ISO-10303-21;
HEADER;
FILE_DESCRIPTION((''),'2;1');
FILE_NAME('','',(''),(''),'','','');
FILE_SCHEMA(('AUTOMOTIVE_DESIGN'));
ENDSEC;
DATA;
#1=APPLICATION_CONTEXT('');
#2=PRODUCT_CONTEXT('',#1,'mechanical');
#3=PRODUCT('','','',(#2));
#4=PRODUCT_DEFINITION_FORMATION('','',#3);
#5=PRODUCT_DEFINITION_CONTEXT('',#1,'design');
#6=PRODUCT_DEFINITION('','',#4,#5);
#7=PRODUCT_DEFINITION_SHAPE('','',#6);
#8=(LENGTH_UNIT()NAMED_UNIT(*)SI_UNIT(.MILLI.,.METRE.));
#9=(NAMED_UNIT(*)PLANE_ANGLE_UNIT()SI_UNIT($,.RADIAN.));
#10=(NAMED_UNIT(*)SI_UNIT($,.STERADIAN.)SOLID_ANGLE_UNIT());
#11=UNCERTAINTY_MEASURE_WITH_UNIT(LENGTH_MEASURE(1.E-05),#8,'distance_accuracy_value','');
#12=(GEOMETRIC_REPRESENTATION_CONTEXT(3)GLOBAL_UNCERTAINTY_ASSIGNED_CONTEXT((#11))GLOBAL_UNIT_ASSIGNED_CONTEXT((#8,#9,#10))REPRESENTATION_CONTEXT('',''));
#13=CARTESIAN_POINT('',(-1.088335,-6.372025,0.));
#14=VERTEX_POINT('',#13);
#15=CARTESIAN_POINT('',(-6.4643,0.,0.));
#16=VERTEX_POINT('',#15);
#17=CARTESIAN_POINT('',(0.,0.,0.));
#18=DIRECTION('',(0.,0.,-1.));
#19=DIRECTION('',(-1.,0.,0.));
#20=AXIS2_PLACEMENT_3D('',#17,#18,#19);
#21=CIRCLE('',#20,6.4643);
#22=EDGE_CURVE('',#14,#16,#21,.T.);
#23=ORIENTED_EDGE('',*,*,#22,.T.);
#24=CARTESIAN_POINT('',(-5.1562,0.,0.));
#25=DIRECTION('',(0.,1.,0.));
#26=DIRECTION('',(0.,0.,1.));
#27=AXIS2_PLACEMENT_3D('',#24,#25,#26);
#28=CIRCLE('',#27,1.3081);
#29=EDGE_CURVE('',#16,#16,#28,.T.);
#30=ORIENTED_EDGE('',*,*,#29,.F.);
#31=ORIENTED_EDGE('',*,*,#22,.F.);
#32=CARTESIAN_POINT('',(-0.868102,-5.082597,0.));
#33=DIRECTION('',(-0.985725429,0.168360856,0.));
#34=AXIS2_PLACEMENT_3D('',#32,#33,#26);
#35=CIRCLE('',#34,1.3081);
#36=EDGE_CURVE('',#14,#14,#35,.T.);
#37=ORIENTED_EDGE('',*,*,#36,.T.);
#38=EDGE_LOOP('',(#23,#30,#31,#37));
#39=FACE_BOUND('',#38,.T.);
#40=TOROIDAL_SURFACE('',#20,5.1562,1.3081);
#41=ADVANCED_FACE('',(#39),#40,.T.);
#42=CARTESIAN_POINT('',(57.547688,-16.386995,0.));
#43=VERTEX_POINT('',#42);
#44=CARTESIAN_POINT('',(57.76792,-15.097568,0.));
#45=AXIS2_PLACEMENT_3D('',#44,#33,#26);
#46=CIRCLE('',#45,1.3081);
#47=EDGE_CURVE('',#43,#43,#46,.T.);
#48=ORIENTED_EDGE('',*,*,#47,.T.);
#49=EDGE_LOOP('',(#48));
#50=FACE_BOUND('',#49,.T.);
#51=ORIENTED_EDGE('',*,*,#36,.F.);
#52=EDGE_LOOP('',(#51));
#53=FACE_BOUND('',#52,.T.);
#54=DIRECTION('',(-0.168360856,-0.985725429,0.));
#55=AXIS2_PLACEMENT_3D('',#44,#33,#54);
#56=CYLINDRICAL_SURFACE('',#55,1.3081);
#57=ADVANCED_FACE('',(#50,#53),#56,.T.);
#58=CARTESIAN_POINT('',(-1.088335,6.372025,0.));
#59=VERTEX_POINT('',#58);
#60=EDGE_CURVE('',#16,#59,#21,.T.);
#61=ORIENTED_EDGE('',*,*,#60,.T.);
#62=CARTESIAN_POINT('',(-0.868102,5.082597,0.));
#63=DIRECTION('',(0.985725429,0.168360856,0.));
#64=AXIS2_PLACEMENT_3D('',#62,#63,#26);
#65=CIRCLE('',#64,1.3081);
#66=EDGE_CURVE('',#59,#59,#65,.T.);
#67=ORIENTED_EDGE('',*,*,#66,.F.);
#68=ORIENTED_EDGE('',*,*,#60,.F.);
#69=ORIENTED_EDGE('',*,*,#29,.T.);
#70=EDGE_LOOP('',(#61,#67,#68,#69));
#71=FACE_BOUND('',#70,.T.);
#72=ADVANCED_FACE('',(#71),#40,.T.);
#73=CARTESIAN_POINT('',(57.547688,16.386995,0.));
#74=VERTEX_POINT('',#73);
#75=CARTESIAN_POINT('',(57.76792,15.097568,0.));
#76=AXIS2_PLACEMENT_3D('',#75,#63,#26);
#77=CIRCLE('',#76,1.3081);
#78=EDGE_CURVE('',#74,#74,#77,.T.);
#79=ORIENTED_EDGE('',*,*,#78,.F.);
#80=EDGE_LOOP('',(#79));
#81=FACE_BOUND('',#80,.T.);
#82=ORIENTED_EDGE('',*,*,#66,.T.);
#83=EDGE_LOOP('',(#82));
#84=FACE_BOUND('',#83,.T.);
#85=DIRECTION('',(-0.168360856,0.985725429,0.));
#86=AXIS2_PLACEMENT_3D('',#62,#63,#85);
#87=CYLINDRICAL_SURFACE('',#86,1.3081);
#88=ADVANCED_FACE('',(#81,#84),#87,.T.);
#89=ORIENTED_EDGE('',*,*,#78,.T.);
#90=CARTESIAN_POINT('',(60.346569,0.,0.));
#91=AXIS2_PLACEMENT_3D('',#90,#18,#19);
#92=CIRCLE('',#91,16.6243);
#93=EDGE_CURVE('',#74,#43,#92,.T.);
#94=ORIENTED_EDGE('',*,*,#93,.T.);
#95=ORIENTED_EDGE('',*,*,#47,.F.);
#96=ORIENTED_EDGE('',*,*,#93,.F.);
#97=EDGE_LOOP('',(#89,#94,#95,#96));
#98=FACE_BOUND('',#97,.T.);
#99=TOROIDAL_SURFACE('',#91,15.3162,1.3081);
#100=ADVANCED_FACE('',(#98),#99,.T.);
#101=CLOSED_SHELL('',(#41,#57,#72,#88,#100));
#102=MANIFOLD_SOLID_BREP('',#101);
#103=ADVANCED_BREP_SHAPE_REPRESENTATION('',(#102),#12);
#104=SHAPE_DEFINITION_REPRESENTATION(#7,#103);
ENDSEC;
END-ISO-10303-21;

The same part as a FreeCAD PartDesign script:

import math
import FreeCAD as App
import Part
import Sketcher
Q = App.Units.Quantity

doc = App.newDocument("Part")
body = doc.addObject("PartDesign::Body", "Body")

# Sketch on XZ plane
sketch1 = body.newObject("Sketcher::SketchObject", "Sketch")
sketch1.AttachmentSupport = (doc.getObject("XZ_Plane"), [""])
sketch1.MapMode = "FlatFace"
sketch1.addGeometry(Part.Circle(App.Vector(-5.1562, 0, 0), App.Vector(0, 0, 1), 1.3081), False)
sketch1.addConstraint(Sketcher.Constraint("PointOnObject", 0, 3, -1))
sketch1.addConstraint(Sketcher.Constraint("Diameter", 0, Q("0.103 in")))
sketch1.addConstraint(Sketcher.Constraint("DistanceX", 0, 3, -1, 1, Q("0.203 in")))

# Sketch on XY plane
sketch2 = body.newObject("Sketcher::SketchObject", "Sketch001")
sketch2.AttachmentSupport = (doc.getObject("XY_Plane"), [""])
sketch2.MapMode = "FlatFace"
sketch2.addGeometry(Part.LineSegment(App.Vector(-0.868102, 5.082597, 0), App.Vector(57.76792, 15.097568, 0)), False)
sketch2.addGeometry(Part.ArcOfCircle(Part.Circle(App.Vector(60.346569, 0, 0), App.Vector(0, 0, 1), 15.3162), math.radians(-99.692529), math.radians(99.692529)), False)
sketch2.addGeometry(Part.LineSegment(App.Vector(57.76792, -15.097568, 0), App.Vector(-0.868102, -5.082597, 0)), False)
sketch2.addGeometry(Part.ArcOfCircle(Part.Circle(App.Vector(0, 0, 0), App.Vector(0, 0, 1), 5.1562), math.radians(99.692529), math.radians(260.307471)), False)
sketch2.addConstraint(Sketcher.Constraint("Tangent", 0, 2, 1, 2))
sketch2.addConstraint(Sketcher.Constraint("Tangent", 1, 1, 2, 1))
sketch2.addConstraint(Sketcher.Constraint("Tangent", 2, 2, 3, 2))
sketch2.addConstraint(Sketcher.Constraint("Tangent", 3, 1, 0, 1))
sketch2.addConstraint(Sketcher.Constraint("Coincident", 3, 3, -1, 1))
sketch2.addConstraint(Sketcher.Constraint("PointOnObject", 1, 3, -1))
sketch2.addConstraint(Sketcher.Constraint("Radius", 1, Q("0.603 in")))
sketch2.addConstraint(Sketcher.Constraint("Radius", 3, Q("0.203 in")))
sketch2.addConstraint(Sketcher.Constraint("DistanceX", -1, 1, 1, 3, 60.346569))
doc.recompute()

additivepipe = body.newObject("PartDesign::AdditivePipe", "AdditivePipe")
additivepipe.Profile = sketch1
additivepipe.Spine = (sketch2, ["Edge1", "Edge2", "Edge3", "Edge4"])

doc.recompute()
